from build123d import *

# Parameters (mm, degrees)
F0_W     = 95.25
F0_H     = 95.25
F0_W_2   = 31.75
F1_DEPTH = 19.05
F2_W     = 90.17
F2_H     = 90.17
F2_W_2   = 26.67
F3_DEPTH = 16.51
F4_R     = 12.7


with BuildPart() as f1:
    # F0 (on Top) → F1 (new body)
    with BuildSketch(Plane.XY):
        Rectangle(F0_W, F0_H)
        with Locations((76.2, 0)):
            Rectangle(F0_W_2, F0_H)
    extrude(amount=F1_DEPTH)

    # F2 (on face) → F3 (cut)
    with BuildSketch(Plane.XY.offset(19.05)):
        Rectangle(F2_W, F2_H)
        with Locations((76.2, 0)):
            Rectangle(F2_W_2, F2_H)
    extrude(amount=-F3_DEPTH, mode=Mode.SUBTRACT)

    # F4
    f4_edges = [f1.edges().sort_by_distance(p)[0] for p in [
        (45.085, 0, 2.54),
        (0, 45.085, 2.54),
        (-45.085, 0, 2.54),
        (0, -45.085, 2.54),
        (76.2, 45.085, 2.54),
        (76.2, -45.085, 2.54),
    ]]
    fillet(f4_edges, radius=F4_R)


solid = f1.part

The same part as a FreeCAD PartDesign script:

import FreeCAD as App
import Part
import Sketcher

V = App.Vector
Q = App.Units.Quantity


def edges_at(feature, points):
    """Names of the edges that pass closest to the given points."""
    edges = feature.Shape.Edges
    near = lambda p: min(range(len(edges)), key=lambda i: edges[i].distToShape(Part.Vertex(*p))[0])
    return sorted({f"Edge{near(p) + 1}" for p in points})


def add_polygon(sketch, points):
    """Adds a closed chain of lines whose ends are joined by coincident constraints."""
    first, n = sketch.GeometryCount, len(points)
    for a, b in zip(points, points[1:] + points[:1]):
        sketch.addGeometry(Part.LineSegment(App.Vector(*a, 0), App.Vector(*b, 0)), False)
    for i in range(n):
        sketch.addConstraint(Sketcher.Constraint("Coincident", first + i, 2, first + (i + 1) % n, 1))

doc = App.newDocument("Part")
body = doc.addObject("PartDesign::Body", "Body")
body.AllowCompound = True

sketch1 = body.newObject("Sketcher::SketchObject", "Sketch")
sketch1.AttachmentSupport = (doc.getObject("XY_Plane"), [""])
sketch1.MapMode = "FlatFace"
add_polygon(sketch1, [(-48, 48), (-48, -48), (48, -48), (48, 48)])
add_polygon(sketch1, [(60, 48), (60, -48), (92, -48), (92, 48)])
sketch1.addConstraint([
    Sketcher.Constraint("Vertical", 0),
    Sketcher.Constraint("Horizontal", 1),
    Sketcher.Constraint("Vertical", 2),
    Sketcher.Constraint("Horizontal", 3),
    Sketcher.Constraint("Vertical", 4),
    Sketcher.Constraint("Horizontal", 5),
    Sketcher.Constraint("Vertical", 6),
    Sketcher.Constraint("Horizontal", 7),
    Sketcher.Constraint("Symmetric", 0, 2, 2, 2, -1, 1),
    Sketcher.Constraint("Horizontal", 1, 2, 4, 2),
    Sketcher.Constraint("Horizontal", 3, 2, 6, 2),
    Sketcher.Constraint("Equal", 3, 0),
    Sketcher.Constraint("DistanceX", 1, 1, 1, 2, Q("3.75 in")),
    Sketcher.Constraint("DistanceX", 5, 1, 5, 2, Q("1.25 in")),
    Sketcher.Constraint("DistanceX", 1, 2, 4, 2, Q("0.5 in")),
])
pad1 = body.newObject("PartDesign::Pad", "Pad")
pad1.Profile = sketch1
pad1.Length = Q("0.75 in")

sketch2 = body.newObject("Sketcher::SketchObject", "Sketch001")
sketch2.AttachmentSupport = (doc.getObject("XY_Plane"), [""])
sketch2.MapMode = "FlatFace"
sketch2.AttachmentOffset = App.Placement(V(0, 0, 0.75 * 25.4), App.Rotation())
add_polygon(sketch2, [(-45, 45), (-45, -45), (45, -45), (45, 45)])
add_polygon(sketch2, [(63, 45), (63, -45), (90, -45), (90, 45)])
sketch2.addConstraint([
    Sketcher.Constraint("Vertical", 0),
    Sketcher.Constraint("Horizontal", 1),
    Sketcher.Constraint("Vertical", 2),
    Sketcher.Constraint("Horizontal", 3),
    Sketcher.Constraint("Vertical", 4),
    Sketcher.Constraint("Horizontal", 5),
    Sketcher.Constraint("Vertical", 6),
    Sketcher.Constraint("Horizontal", 7),
    Sketcher.Constraint("Symmetric", 0, 2, 2, 2, -1, 1),
    Sketcher.Constraint("Horizontal", 1, 2, 4, 2),
    Sketcher.Constraint("Horizontal", 3, 2, 6, 2),
    Sketcher.Constraint("Equal", 3, 0),
    Sketcher.Constraint("DistanceX", 1, 1, 1, 2, Q("3.55 in")),
    Sketcher.Constraint("DistanceX", 5, 1, 5, 2, Q("1.05 in")),
    Sketcher.Constraint("DistanceX", 1, 2, 4, 2, Q("0.7 in")),
])
pocket1 = body.newObject("PartDesign::Pocket", "Pocket")
pocket1.Profile = sketch2
pocket1.Length = Q("0.65 in")
doc.recompute()

fillet = body.newObject("PartDesign::Fillet", "Fillet")
fillet.Base = (pocket1, edges_at(pocket1, [
    (45.085, 0, 2.54),
    (0, 45.085, 2.54),
    (-45.085, 0, 2.54),
    (0, -45.085, 2.54),
    (76.2, 45.085, 2.54),
    (76.2, -45.085, 2.54),
]))
fillet.Radius = Q("0.5 in")

doc.recompute()
